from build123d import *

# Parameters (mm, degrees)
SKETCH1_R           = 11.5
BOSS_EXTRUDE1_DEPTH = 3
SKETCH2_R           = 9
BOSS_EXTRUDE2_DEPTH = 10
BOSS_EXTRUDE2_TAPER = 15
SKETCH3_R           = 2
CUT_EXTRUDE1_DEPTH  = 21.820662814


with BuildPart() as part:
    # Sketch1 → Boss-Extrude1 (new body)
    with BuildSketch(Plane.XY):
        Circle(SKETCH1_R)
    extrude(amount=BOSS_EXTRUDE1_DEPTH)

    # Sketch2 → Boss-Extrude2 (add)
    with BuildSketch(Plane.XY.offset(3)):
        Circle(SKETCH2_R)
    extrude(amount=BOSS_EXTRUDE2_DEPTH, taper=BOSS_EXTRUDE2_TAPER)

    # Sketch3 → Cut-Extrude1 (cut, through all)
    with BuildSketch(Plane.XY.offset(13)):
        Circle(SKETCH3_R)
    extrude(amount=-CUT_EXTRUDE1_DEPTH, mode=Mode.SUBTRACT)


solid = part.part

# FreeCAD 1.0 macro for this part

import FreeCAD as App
import Part
import Sketcher
from FreeCAD import Vector

doc = App.newDocument("Part")
body = doc.addObject("PartDesign::Body", "Body")

# Sketch on XY plane
sketch1 = doc.addObject("Sketcher::SketchObject", "Sketch")
body.addObject(sketch1)
sketch1.AttachmentSupport = (doc.XY_Plane, [""])
sketch1.MapMode = "FlatFace"
sketch1.addGeometry(Part.Circle(Vector(0, 0, 0), Vector(0, 0, 1), 12), False)
sketch1.addConstraint(Sketcher.Constraint("Coincident", 0, 3, -1, 1))
sketch1.addConstraint(Sketcher.Constraint("Diameter", 0, 23.0))
pad1 = doc.addObject("PartDesign::Pad", "Pad")
body.addObject(pad1)
pad1.Profile = sketch1
pad1.Length = 3

# Sketch on XY plane
sketch2 = doc.addObject("Sketcher::SketchObject", "Sketch001")
body.addObject(sketch2)
sketch2.AttachmentSupport = (doc.XY_Plane, [""])
sketch2.MapMode = "FlatFace"
sketch2.AttachmentOffset = App.Placement(Vector(0, 0, 3), App.Rotation())
sketch2.addGeometry(Part.Circle(Vector(0, 0, 0), Vector(0, 0, 1), 9), False)
sketch2.addConstraint(Sketcher.Constraint("Coincident", 0, 3, -1, 1))
sketch2.addConstraint(Sketcher.Constraint("Diameter", 0, 18.0))
pad2 = doc.addObject("PartDesign::Pad", "Pad001")
body.addObject(pad2)
pad2.Profile = sketch2
pad2.Length = 10
pad2.TaperAngle = -15

# Sketch on XY plane
sketch3 = doc.addObject("Sketcher::SketchObject", "Sketch002")
body.addObject(sketch3)
sketch3.AttachmentSupport = (doc.XY_Plane, [""])
sketch3.MapMode = "FlatFace"
sketch3.AttachmentOffset = App.Placement(Vector(0, 0, 13), App.Rotation())
sketch3.addGeometry(Part.Circle(Vector(0, 0, 0), Vector(0, 0, 1), 2), False)
sketch3.addConstraint(Sketcher.Constraint("Coincident", 0, 3, -1, 1))
sketch3.addConstraint(Sketcher.Constraint("Diameter", 0, 4.0))
pocket1 = doc.addObject("PartDesign::Pocket", "Pocket")
body.addObject(pocket1)
pocket1.Profile = sketch3
pocket1.Type = "ThroughAll"

doc.recompute()
